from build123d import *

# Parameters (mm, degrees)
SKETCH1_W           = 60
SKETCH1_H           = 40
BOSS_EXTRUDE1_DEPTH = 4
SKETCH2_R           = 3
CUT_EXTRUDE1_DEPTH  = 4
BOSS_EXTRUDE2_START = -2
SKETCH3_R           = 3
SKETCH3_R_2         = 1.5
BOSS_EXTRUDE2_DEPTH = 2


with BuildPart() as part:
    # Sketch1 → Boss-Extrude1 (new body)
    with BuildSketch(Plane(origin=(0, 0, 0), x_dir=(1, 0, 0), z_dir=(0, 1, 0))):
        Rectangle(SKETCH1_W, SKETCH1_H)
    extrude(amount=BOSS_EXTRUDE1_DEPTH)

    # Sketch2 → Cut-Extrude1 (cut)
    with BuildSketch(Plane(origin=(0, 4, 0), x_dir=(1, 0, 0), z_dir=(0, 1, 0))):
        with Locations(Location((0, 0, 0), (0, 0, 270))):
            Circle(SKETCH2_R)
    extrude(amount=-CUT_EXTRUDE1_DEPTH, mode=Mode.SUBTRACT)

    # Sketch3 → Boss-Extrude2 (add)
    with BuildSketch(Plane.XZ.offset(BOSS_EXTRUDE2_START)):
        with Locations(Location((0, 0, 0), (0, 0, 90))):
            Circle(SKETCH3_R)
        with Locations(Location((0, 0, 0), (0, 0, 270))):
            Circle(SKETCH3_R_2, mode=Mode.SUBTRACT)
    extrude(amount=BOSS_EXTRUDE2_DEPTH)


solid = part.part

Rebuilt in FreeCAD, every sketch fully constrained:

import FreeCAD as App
import Part
import Sketcher
from FreeCAD import Vector
Q = App.Units.Quantity


def add_polygon(sketch, points):
    """Adds a closed chain of lines whose ends are joined by coincident constraints."""
    first, n = sketch.GeometryCount, len(points)
    for a, b in zip(points, points[1:] + points[:1]):
        sketch.addGeometry(Part.LineSegment(App.Vector(*a, 0), App.Vector(*b, 0)), False)
    for i in range(n):
        sketch.addConstraint(Sketcher.Constraint("Coincident", first + i, 2, first + (i + 1) % n, 1))

doc = App.newDocument("Part")
params = doc.addObject("Spreadsheet::Sheet", "Params")
for row, (alias, value) in enumerate([
    ("sketch1_width", "60 mm"),
    ("sketch1_height", "40 mm"),
    ("pad1_length", "4 mm"),
    ("sketch2_diameter", "6 mm"),
    ("pocket1_length", "4 mm"),
    ("sketch3_diameter", "6 mm"),
    ("sketch3_diameter2", "3 mm"),
    ("pad2_length", "2 mm"),
], start=1):
    params.set(f"A{row}", alias)
    params.set(f"B{row}", "=" + value)
    params.setAlias(f"B{row}", alias)

body = doc.addObject("PartDesign::Body", "Body")

# Sketch on XZ plane
sketch1 = doc.addObject("Sketcher::SketchObject", "Sketch")
body.addObject(sketch1)
sketch1.AttachmentSupport = (doc.XZ_Plane, [""])
sketch1.MapMode = "FlatFace"
add_polygon(sketch1, [(-30, -20), (-30, 20), (30, 20), (30, -20)])  # lines 0-3
sketch1.addConstraint(Sketcher.Constraint("Vertical", 0))
sketch1.addConstraint(Sketcher.Constraint("Horizontal", 1))
sketch1.addConstraint(Sketcher.Constraint("Vertical", 2))
sketch1.addConstraint(Sketcher.Constraint("Horizontal", 3))
sketch1.addConstraint(Sketcher.Constraint("Symmetric", 0, 2, 2, 2, -1, 1))
sketch1.addConstraint(Sketcher.Constraint("DistanceX", 1, 1, 1, 2, Q("60 mm")))
sketch1.addConstraint(Sketcher.Constraint("DistanceY", 0, 1, 0, 2, Q("40 mm")))
sketch1.setExpression("Constraints[9]", "Params.sketch1_width")
sketch1.setExpression("Constraints[10]", "Params.sketch1_height")
pad1 = doc.addObject("PartDesign::Pad", "Pad")
body.addObject(pad1)
pad1.Profile = sketch1
pad1.setExpression("Length", "Params.pad1_length")
pad1.Reversed = True

# Sketch on XZ plane
sketch2 = doc.addObject("Sketcher::SketchObject", "Sketch001")
body.addObject(sketch2)
sketch2.AttachmentSupport = (doc.XZ_Plane, [""])
sketch2.MapMode = "FlatFace"
sketch2.AttachmentOffset = App.Placement(Vector(0, 0, -4), App.Rotation())
sketch2.addGeometry(Part.Circle(Vector(0, 0, 0), Vector(0, 0, 1), 3), False)
sketch2.addConstraint(Sketcher.Constraint("Coincident", 0, 3, -1, 1))
sketch2.addConstraint(Sketcher.Constraint("Diameter", 0, Q("6 mm")))
sketch2.setExpression("Constraints[1]", "Params.sketch2_diameter")
pocket1 = doc.addObject("PartDesign::Pocket", "Pocket")
body.addObject(pocket1)
pocket1.Profile = sketch2
pocket1.setExpression("Length", "Params.pocket1_length")
pocket1.Reversed = True

# Sketch on XZ plane
sketch3 = doc.addObject("Sketcher::SketchObject", "Sketch002")
body.addObject(sketch3)
sketch3.AttachmentSupport = (doc.XZ_Plane, [""])
sketch3.MapMode = "FlatFace"
sketch3.AttachmentOffset = App.Placement(Vector(0, 0, -2), App.Rotation())
sketch3.addGeometry(Part.Circle(Vector(0, 0, 0), Vector(0, 0, 1), 3), False)
sketch3.addGeometry(Part.Circle(Vector(0, 0, 0), Vector(0, 0, 1), 1.5), False)
sketch3.addConstraint(Sketcher.Constraint("Coincident", 0, 3, -1, 1))
sketch3.addConstraint(Sketcher.Constraint("Coincident", 1, 3, -1, 1))
sketch3.addConstraint(Sketcher.Constraint("Diameter", 0, Q("6 mm")))
sketch3.addConstraint(Sketcher.Constraint("Diameter", 1, Q("3 mm")))
sketch3.setExpression("Constraints[2]", "Params.sketch3_diameter")
sketch3.setExpression("Constraints[3]", "Params.sketch3_diameter2")
pad2 = doc.addObject("PartDesign::Pad", "Pad001")
body.addObject(pad2)
pad2.Profile = sketch3
pad2.setExpression("Length", "Params.pad2_length")

doc.recompute()
